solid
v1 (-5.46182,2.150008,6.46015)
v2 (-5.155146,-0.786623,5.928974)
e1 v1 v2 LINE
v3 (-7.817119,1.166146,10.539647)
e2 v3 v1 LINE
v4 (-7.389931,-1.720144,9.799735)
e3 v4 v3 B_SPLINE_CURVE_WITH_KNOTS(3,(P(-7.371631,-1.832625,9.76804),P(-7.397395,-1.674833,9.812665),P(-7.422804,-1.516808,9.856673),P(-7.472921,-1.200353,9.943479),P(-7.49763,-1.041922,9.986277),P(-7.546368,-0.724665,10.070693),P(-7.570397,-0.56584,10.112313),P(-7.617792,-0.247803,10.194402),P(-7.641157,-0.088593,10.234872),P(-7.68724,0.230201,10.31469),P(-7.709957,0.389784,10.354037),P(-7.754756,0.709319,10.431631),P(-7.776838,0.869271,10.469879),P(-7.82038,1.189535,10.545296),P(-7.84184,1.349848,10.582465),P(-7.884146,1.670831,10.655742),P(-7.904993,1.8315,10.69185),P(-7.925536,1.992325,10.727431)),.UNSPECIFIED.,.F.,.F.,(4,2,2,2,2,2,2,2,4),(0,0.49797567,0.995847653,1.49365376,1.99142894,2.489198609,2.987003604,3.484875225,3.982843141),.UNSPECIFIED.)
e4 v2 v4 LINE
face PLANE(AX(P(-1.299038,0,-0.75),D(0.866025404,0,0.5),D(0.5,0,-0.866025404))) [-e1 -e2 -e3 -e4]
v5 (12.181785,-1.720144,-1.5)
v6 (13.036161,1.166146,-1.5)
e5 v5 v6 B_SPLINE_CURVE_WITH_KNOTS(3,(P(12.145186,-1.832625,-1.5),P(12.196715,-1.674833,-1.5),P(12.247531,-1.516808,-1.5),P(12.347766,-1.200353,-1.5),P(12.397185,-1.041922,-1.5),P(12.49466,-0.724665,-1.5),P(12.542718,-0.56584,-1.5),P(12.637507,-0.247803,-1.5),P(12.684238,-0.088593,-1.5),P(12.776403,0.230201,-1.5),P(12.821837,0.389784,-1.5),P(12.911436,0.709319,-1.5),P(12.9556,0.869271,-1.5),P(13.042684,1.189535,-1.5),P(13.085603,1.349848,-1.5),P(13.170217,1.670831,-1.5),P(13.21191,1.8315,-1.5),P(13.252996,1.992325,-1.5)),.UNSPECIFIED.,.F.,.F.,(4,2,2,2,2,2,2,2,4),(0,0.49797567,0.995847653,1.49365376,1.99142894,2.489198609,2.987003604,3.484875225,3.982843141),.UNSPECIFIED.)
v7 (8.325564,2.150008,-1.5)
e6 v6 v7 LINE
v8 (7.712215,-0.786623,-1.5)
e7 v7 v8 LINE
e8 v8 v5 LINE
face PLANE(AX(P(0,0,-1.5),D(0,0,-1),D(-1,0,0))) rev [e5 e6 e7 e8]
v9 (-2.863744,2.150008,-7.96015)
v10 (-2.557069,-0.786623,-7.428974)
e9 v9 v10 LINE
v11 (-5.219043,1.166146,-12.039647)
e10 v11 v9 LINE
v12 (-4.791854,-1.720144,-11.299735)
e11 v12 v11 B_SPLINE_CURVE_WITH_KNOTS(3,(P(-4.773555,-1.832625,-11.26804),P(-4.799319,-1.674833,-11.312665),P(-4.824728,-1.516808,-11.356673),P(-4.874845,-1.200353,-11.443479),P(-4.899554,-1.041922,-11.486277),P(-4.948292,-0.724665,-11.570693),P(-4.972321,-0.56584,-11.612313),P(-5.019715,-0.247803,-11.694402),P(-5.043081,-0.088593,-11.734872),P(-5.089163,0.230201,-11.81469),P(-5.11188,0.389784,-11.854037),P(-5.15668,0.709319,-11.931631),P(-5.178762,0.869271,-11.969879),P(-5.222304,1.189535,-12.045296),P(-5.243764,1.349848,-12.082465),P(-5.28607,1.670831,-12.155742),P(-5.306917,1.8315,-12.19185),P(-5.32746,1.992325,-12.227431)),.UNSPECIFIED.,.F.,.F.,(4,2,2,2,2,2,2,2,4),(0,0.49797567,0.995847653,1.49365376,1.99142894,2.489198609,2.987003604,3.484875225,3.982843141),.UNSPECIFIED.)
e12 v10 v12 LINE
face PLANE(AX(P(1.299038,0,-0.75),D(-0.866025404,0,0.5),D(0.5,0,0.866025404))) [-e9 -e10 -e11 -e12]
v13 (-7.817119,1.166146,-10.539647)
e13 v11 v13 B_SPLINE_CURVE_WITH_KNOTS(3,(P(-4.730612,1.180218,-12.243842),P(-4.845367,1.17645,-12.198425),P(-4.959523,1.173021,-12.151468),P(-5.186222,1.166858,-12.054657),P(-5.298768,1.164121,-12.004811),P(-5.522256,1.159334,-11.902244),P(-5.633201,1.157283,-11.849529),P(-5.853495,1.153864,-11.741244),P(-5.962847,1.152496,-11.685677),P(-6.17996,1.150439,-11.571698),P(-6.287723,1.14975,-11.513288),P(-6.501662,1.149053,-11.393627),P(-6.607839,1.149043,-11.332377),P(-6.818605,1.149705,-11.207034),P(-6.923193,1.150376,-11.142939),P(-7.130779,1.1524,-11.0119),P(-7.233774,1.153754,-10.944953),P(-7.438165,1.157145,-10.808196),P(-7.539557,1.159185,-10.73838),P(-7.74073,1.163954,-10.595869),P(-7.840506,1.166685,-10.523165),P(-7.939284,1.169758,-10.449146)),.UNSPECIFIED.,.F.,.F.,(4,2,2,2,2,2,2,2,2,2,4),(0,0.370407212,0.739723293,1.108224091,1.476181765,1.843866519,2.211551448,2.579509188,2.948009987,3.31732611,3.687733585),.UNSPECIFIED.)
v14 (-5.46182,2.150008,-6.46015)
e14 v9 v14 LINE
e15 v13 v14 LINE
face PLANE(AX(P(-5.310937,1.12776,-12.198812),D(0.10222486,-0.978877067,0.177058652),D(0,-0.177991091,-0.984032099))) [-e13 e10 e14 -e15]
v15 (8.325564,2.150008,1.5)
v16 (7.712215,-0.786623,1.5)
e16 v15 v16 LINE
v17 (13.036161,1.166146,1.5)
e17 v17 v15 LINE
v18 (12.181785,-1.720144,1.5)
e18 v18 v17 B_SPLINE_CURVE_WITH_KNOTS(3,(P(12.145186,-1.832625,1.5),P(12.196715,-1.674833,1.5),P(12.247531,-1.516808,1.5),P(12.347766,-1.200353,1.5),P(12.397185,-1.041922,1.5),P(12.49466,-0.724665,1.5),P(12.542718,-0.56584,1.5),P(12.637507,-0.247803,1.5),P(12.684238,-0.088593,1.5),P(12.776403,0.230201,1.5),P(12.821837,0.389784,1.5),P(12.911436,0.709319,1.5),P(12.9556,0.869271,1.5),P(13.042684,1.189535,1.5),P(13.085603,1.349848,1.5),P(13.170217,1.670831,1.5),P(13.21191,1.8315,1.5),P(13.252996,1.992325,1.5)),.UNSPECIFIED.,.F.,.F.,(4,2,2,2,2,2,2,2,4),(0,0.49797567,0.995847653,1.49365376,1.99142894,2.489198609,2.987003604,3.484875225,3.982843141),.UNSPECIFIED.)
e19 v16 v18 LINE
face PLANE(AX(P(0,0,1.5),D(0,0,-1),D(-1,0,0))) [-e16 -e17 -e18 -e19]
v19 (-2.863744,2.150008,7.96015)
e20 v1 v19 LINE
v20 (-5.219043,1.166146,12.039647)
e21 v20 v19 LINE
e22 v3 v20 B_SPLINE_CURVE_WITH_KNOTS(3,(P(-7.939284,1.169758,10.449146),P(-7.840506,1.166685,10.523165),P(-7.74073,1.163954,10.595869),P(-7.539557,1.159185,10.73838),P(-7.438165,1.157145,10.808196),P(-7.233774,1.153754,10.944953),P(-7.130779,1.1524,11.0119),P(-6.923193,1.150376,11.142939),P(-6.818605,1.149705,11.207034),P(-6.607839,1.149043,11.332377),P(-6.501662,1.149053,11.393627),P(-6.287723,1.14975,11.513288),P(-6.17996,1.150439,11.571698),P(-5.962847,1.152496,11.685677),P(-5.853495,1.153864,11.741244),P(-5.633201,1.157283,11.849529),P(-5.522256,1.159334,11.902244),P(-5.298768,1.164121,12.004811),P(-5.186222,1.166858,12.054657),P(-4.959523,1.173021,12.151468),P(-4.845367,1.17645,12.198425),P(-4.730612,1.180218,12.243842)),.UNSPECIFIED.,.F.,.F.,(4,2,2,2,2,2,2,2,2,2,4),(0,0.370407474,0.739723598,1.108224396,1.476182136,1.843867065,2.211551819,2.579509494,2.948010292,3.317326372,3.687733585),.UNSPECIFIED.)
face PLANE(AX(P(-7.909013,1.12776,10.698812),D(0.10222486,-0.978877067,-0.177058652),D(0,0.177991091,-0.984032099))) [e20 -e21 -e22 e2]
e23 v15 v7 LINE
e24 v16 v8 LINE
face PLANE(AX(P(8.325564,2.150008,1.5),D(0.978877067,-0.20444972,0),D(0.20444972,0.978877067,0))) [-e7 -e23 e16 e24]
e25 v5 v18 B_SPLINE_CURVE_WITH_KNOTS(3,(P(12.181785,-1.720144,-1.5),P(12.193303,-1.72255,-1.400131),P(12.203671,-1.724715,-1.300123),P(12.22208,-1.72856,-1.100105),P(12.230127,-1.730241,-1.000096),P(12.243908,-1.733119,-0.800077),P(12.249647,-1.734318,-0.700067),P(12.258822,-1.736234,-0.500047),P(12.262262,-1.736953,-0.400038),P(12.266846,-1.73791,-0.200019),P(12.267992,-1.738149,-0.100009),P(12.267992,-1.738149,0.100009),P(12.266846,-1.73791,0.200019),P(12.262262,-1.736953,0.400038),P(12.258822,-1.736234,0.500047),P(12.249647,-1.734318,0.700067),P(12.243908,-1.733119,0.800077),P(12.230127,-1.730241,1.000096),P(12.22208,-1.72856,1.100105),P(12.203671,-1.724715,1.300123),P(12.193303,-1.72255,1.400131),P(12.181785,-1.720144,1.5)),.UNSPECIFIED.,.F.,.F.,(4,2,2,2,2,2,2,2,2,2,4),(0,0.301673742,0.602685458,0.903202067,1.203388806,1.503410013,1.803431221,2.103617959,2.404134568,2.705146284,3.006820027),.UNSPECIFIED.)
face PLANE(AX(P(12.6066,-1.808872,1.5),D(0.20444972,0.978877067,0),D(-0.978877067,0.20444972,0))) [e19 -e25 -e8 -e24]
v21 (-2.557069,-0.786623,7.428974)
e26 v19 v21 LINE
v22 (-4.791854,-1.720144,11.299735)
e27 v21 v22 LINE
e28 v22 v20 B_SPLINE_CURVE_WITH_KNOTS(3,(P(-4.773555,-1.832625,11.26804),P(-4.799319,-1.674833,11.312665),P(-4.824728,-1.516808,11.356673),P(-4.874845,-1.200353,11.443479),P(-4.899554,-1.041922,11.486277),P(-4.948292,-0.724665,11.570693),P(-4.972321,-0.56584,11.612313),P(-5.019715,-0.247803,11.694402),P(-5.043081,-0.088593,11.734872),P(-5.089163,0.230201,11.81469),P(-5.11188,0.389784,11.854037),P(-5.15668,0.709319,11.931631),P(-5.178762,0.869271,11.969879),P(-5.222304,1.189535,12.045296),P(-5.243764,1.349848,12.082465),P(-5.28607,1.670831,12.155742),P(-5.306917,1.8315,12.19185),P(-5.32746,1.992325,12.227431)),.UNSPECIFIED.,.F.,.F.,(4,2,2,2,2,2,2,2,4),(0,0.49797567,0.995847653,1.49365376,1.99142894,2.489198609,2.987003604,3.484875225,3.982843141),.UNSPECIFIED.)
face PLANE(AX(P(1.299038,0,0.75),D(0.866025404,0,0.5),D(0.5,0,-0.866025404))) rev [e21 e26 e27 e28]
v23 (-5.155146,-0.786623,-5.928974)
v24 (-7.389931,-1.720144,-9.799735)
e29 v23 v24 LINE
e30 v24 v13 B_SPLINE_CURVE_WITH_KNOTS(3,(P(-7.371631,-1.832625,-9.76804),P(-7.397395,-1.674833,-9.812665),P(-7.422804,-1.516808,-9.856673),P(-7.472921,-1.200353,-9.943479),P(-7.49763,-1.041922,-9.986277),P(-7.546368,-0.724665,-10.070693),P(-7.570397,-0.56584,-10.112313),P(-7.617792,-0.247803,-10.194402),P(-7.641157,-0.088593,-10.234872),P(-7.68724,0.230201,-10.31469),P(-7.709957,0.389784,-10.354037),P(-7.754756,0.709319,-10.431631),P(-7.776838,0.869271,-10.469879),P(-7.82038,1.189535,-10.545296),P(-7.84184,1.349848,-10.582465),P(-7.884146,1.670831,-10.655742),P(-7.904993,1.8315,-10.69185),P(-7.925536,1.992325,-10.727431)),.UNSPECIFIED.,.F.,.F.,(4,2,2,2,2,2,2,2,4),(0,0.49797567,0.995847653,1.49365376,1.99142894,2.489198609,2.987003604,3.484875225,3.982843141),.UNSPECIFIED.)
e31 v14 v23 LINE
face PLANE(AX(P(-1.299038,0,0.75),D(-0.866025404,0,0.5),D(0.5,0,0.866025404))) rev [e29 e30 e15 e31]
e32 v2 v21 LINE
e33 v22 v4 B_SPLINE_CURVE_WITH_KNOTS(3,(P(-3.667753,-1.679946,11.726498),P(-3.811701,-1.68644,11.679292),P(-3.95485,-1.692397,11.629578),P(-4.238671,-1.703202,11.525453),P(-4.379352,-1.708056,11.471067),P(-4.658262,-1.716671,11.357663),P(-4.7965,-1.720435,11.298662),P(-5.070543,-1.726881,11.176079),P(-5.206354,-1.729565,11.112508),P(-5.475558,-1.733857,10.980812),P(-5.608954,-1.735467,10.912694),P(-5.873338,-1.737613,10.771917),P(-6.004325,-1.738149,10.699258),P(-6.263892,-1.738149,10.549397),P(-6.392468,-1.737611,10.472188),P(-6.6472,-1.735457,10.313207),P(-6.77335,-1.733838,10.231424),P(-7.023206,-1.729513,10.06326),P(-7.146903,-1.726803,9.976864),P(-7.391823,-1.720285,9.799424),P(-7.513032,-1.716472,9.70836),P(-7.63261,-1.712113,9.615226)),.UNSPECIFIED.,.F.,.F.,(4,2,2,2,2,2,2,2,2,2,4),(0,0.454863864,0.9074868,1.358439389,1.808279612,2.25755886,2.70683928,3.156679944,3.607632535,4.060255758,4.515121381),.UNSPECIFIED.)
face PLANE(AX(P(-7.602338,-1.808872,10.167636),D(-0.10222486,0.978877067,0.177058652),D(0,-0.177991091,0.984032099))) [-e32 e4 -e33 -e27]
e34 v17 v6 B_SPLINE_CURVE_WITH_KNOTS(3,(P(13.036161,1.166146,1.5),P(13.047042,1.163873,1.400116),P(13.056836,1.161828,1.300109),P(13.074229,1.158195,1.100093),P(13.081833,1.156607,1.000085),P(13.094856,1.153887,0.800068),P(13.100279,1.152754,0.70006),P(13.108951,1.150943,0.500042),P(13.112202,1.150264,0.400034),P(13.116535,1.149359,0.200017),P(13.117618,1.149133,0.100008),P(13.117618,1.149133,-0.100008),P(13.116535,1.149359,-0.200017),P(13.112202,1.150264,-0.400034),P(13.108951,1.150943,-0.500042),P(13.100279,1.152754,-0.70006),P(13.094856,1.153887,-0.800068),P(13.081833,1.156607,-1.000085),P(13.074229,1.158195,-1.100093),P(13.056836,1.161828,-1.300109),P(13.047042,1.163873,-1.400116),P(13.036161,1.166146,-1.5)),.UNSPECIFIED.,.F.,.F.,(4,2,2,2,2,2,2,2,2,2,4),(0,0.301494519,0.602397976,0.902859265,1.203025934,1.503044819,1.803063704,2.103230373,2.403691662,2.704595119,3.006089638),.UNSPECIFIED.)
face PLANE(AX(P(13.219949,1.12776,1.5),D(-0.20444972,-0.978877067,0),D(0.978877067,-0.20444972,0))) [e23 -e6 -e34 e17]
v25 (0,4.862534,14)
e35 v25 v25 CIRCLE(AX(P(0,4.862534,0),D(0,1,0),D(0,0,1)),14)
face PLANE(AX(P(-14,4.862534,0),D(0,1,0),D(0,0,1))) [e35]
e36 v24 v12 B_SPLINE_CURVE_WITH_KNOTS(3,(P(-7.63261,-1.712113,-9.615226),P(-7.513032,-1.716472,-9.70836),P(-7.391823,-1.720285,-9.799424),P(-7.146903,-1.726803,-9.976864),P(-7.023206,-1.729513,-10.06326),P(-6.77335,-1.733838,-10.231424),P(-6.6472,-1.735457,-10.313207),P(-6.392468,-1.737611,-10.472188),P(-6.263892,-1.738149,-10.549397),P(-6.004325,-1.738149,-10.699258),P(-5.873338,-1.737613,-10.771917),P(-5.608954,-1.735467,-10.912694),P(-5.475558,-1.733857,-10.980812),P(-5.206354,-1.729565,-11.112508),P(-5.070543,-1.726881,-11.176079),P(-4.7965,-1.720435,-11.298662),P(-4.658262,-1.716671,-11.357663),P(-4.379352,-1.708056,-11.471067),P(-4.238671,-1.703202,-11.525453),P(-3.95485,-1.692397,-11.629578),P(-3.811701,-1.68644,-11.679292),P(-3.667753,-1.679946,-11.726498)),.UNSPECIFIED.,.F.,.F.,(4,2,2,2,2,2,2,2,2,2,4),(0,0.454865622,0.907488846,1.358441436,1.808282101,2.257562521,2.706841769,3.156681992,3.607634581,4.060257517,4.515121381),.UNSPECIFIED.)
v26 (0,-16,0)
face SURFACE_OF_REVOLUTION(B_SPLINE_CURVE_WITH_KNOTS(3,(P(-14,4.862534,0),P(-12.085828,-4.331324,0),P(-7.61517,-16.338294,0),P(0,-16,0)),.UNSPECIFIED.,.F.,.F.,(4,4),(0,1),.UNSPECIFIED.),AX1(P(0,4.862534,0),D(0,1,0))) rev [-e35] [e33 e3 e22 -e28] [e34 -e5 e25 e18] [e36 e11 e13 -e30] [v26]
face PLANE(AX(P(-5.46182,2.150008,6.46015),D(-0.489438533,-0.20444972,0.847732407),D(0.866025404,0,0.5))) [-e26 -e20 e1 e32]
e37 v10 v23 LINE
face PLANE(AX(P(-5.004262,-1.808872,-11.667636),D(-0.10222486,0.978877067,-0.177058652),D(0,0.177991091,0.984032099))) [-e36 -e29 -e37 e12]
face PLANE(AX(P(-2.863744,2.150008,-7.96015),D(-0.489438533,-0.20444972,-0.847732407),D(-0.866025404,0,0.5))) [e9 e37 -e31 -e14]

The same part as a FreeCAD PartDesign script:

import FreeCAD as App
import Part
import Sketcher

V = App.Vector
Q = App.Units.Quantity


def add_polygon(sketch, points):
    """Adds a closed chain of lines whose ends are joined by coincident constraints."""
    first, n = sketch.GeometryCount, len(points)
    for a, b in zip(points, points[1:] + points[:1]):
        sketch.addGeometry(Part.LineSegment(App.Vector(*a, 0), App.Vector(*b, 0)), False)
    for i in range(n):
        sketch.addConstraint(Sketcher.Constraint("Coincident", first + i, 2, first + (i + 1) % n, 1))

doc = App.newDocument("Part")
body = doc.addObject("PartDesign::Body", "Body")

sketch1 = body.newObject("Sketcher::SketchObject", "Sketch")
sketch1.AttachmentSupport = (doc.getObject("XY_Plane"), [""])
sketch1.MapMode = "FlatFace"
sketch1.addGeometry(Part.LineSegment(V(0, 4.862534, 0), V(-14, 4.862534, 0)), False)
sketch1.addGeometry(Part.BSplineCurve([V(-14, 4.862534, 0), V(-12.085828, -4.331324, 0), V(-7.61517, -16.338294, 0), V(0, -16, 0)], [4, 4], [0, 1], False, 3, [1, 1, 1, 1], False), False)
sketch1.addGeometry(Part.LineSegment(V(0, -16, 0), V(0, 4.862534, 0)), False)
sketch1.addConstraint(Sketcher.Constraint("Block", 1))
sketch1.addConstraint(Sketcher.Constraint("Coincident", 0, 2, 1, 1))
sketch1.addConstraint(Sketcher.Constraint("Coincident", 1, 2, 2, 1))
sketch1.addConstraint(Sketcher.Constraint("Coincident", 2, 2, 0, 1))
sketch1.addConstraint(Sketcher.Constraint("Horizontal", 0))
sketch1.addConstraint(Sketcher.Constraint("Vertical", 2))
revolution = body.newObject("PartDesign::Revolution", "Revolution")
revolution.Profile = sketch1
revolution.ReferenceAxis = (sketch1, ["V_Axis"])
revolution.Angle = 360

sketch2 = body.newObject("Sketcher::SketchObject", "Sketch001")
sketch2.AttachmentSupport = (doc.getObject("XY_Plane"), [""])
sketch2.MapMode = "FlatFace"
add_polygon(sketch2, [(13.219949, 1.12776), (8.325564, 2.150008), (7.712215, -0.786623), (12.6066, -1.808872)])
sketch2.addConstraint(Sketcher.Constraint("Perpendicular", 0, 1))
sketch2.addConstraint(Sketcher.Constraint("Perpendicular", 1, 2))
sketch2.addConstraint(Sketcher.Constraint("Perpendicular", 2, 3))
sketch2.addConstraint(Sketcher.Constraint("Distance", 0, Q("5 mm")))
sketch2.addConstraint(Sketcher.Constraint("Distance", 1, Q("3 mm")))
sketch2.addConstraint(Sketcher.Constraint("DistanceX", -1, 1, 2, 2, Q("12.6066 mm")))
sketch2.addConstraint(Sketcher.Constraint("DistanceY", -1, 1, 0, 2, Q("2.150008 mm")))
sketch2.addConstraint(Sketcher.Constraint("DistanceY", 2, 2, -1, 1, Q("1.808872 mm")))
pocket1 = body.newObject("PartDesign::Pocket", "Pocket")
pocket1.Profile = sketch2
pocket1.Length = 3
pocket1.Midplane = True
doc.recompute()

polarpattern = body.newObject("PartDesign::PolarPattern", "PolarPattern")
polarpattern.Originals = [pocket1]
polarpattern.Axis = (doc.getObject("Y_Axis"), [""])
polarpattern.Angle = 360
polarpattern.Occurrences = 3
body.Tip = polarpattern

doc.recompute()
